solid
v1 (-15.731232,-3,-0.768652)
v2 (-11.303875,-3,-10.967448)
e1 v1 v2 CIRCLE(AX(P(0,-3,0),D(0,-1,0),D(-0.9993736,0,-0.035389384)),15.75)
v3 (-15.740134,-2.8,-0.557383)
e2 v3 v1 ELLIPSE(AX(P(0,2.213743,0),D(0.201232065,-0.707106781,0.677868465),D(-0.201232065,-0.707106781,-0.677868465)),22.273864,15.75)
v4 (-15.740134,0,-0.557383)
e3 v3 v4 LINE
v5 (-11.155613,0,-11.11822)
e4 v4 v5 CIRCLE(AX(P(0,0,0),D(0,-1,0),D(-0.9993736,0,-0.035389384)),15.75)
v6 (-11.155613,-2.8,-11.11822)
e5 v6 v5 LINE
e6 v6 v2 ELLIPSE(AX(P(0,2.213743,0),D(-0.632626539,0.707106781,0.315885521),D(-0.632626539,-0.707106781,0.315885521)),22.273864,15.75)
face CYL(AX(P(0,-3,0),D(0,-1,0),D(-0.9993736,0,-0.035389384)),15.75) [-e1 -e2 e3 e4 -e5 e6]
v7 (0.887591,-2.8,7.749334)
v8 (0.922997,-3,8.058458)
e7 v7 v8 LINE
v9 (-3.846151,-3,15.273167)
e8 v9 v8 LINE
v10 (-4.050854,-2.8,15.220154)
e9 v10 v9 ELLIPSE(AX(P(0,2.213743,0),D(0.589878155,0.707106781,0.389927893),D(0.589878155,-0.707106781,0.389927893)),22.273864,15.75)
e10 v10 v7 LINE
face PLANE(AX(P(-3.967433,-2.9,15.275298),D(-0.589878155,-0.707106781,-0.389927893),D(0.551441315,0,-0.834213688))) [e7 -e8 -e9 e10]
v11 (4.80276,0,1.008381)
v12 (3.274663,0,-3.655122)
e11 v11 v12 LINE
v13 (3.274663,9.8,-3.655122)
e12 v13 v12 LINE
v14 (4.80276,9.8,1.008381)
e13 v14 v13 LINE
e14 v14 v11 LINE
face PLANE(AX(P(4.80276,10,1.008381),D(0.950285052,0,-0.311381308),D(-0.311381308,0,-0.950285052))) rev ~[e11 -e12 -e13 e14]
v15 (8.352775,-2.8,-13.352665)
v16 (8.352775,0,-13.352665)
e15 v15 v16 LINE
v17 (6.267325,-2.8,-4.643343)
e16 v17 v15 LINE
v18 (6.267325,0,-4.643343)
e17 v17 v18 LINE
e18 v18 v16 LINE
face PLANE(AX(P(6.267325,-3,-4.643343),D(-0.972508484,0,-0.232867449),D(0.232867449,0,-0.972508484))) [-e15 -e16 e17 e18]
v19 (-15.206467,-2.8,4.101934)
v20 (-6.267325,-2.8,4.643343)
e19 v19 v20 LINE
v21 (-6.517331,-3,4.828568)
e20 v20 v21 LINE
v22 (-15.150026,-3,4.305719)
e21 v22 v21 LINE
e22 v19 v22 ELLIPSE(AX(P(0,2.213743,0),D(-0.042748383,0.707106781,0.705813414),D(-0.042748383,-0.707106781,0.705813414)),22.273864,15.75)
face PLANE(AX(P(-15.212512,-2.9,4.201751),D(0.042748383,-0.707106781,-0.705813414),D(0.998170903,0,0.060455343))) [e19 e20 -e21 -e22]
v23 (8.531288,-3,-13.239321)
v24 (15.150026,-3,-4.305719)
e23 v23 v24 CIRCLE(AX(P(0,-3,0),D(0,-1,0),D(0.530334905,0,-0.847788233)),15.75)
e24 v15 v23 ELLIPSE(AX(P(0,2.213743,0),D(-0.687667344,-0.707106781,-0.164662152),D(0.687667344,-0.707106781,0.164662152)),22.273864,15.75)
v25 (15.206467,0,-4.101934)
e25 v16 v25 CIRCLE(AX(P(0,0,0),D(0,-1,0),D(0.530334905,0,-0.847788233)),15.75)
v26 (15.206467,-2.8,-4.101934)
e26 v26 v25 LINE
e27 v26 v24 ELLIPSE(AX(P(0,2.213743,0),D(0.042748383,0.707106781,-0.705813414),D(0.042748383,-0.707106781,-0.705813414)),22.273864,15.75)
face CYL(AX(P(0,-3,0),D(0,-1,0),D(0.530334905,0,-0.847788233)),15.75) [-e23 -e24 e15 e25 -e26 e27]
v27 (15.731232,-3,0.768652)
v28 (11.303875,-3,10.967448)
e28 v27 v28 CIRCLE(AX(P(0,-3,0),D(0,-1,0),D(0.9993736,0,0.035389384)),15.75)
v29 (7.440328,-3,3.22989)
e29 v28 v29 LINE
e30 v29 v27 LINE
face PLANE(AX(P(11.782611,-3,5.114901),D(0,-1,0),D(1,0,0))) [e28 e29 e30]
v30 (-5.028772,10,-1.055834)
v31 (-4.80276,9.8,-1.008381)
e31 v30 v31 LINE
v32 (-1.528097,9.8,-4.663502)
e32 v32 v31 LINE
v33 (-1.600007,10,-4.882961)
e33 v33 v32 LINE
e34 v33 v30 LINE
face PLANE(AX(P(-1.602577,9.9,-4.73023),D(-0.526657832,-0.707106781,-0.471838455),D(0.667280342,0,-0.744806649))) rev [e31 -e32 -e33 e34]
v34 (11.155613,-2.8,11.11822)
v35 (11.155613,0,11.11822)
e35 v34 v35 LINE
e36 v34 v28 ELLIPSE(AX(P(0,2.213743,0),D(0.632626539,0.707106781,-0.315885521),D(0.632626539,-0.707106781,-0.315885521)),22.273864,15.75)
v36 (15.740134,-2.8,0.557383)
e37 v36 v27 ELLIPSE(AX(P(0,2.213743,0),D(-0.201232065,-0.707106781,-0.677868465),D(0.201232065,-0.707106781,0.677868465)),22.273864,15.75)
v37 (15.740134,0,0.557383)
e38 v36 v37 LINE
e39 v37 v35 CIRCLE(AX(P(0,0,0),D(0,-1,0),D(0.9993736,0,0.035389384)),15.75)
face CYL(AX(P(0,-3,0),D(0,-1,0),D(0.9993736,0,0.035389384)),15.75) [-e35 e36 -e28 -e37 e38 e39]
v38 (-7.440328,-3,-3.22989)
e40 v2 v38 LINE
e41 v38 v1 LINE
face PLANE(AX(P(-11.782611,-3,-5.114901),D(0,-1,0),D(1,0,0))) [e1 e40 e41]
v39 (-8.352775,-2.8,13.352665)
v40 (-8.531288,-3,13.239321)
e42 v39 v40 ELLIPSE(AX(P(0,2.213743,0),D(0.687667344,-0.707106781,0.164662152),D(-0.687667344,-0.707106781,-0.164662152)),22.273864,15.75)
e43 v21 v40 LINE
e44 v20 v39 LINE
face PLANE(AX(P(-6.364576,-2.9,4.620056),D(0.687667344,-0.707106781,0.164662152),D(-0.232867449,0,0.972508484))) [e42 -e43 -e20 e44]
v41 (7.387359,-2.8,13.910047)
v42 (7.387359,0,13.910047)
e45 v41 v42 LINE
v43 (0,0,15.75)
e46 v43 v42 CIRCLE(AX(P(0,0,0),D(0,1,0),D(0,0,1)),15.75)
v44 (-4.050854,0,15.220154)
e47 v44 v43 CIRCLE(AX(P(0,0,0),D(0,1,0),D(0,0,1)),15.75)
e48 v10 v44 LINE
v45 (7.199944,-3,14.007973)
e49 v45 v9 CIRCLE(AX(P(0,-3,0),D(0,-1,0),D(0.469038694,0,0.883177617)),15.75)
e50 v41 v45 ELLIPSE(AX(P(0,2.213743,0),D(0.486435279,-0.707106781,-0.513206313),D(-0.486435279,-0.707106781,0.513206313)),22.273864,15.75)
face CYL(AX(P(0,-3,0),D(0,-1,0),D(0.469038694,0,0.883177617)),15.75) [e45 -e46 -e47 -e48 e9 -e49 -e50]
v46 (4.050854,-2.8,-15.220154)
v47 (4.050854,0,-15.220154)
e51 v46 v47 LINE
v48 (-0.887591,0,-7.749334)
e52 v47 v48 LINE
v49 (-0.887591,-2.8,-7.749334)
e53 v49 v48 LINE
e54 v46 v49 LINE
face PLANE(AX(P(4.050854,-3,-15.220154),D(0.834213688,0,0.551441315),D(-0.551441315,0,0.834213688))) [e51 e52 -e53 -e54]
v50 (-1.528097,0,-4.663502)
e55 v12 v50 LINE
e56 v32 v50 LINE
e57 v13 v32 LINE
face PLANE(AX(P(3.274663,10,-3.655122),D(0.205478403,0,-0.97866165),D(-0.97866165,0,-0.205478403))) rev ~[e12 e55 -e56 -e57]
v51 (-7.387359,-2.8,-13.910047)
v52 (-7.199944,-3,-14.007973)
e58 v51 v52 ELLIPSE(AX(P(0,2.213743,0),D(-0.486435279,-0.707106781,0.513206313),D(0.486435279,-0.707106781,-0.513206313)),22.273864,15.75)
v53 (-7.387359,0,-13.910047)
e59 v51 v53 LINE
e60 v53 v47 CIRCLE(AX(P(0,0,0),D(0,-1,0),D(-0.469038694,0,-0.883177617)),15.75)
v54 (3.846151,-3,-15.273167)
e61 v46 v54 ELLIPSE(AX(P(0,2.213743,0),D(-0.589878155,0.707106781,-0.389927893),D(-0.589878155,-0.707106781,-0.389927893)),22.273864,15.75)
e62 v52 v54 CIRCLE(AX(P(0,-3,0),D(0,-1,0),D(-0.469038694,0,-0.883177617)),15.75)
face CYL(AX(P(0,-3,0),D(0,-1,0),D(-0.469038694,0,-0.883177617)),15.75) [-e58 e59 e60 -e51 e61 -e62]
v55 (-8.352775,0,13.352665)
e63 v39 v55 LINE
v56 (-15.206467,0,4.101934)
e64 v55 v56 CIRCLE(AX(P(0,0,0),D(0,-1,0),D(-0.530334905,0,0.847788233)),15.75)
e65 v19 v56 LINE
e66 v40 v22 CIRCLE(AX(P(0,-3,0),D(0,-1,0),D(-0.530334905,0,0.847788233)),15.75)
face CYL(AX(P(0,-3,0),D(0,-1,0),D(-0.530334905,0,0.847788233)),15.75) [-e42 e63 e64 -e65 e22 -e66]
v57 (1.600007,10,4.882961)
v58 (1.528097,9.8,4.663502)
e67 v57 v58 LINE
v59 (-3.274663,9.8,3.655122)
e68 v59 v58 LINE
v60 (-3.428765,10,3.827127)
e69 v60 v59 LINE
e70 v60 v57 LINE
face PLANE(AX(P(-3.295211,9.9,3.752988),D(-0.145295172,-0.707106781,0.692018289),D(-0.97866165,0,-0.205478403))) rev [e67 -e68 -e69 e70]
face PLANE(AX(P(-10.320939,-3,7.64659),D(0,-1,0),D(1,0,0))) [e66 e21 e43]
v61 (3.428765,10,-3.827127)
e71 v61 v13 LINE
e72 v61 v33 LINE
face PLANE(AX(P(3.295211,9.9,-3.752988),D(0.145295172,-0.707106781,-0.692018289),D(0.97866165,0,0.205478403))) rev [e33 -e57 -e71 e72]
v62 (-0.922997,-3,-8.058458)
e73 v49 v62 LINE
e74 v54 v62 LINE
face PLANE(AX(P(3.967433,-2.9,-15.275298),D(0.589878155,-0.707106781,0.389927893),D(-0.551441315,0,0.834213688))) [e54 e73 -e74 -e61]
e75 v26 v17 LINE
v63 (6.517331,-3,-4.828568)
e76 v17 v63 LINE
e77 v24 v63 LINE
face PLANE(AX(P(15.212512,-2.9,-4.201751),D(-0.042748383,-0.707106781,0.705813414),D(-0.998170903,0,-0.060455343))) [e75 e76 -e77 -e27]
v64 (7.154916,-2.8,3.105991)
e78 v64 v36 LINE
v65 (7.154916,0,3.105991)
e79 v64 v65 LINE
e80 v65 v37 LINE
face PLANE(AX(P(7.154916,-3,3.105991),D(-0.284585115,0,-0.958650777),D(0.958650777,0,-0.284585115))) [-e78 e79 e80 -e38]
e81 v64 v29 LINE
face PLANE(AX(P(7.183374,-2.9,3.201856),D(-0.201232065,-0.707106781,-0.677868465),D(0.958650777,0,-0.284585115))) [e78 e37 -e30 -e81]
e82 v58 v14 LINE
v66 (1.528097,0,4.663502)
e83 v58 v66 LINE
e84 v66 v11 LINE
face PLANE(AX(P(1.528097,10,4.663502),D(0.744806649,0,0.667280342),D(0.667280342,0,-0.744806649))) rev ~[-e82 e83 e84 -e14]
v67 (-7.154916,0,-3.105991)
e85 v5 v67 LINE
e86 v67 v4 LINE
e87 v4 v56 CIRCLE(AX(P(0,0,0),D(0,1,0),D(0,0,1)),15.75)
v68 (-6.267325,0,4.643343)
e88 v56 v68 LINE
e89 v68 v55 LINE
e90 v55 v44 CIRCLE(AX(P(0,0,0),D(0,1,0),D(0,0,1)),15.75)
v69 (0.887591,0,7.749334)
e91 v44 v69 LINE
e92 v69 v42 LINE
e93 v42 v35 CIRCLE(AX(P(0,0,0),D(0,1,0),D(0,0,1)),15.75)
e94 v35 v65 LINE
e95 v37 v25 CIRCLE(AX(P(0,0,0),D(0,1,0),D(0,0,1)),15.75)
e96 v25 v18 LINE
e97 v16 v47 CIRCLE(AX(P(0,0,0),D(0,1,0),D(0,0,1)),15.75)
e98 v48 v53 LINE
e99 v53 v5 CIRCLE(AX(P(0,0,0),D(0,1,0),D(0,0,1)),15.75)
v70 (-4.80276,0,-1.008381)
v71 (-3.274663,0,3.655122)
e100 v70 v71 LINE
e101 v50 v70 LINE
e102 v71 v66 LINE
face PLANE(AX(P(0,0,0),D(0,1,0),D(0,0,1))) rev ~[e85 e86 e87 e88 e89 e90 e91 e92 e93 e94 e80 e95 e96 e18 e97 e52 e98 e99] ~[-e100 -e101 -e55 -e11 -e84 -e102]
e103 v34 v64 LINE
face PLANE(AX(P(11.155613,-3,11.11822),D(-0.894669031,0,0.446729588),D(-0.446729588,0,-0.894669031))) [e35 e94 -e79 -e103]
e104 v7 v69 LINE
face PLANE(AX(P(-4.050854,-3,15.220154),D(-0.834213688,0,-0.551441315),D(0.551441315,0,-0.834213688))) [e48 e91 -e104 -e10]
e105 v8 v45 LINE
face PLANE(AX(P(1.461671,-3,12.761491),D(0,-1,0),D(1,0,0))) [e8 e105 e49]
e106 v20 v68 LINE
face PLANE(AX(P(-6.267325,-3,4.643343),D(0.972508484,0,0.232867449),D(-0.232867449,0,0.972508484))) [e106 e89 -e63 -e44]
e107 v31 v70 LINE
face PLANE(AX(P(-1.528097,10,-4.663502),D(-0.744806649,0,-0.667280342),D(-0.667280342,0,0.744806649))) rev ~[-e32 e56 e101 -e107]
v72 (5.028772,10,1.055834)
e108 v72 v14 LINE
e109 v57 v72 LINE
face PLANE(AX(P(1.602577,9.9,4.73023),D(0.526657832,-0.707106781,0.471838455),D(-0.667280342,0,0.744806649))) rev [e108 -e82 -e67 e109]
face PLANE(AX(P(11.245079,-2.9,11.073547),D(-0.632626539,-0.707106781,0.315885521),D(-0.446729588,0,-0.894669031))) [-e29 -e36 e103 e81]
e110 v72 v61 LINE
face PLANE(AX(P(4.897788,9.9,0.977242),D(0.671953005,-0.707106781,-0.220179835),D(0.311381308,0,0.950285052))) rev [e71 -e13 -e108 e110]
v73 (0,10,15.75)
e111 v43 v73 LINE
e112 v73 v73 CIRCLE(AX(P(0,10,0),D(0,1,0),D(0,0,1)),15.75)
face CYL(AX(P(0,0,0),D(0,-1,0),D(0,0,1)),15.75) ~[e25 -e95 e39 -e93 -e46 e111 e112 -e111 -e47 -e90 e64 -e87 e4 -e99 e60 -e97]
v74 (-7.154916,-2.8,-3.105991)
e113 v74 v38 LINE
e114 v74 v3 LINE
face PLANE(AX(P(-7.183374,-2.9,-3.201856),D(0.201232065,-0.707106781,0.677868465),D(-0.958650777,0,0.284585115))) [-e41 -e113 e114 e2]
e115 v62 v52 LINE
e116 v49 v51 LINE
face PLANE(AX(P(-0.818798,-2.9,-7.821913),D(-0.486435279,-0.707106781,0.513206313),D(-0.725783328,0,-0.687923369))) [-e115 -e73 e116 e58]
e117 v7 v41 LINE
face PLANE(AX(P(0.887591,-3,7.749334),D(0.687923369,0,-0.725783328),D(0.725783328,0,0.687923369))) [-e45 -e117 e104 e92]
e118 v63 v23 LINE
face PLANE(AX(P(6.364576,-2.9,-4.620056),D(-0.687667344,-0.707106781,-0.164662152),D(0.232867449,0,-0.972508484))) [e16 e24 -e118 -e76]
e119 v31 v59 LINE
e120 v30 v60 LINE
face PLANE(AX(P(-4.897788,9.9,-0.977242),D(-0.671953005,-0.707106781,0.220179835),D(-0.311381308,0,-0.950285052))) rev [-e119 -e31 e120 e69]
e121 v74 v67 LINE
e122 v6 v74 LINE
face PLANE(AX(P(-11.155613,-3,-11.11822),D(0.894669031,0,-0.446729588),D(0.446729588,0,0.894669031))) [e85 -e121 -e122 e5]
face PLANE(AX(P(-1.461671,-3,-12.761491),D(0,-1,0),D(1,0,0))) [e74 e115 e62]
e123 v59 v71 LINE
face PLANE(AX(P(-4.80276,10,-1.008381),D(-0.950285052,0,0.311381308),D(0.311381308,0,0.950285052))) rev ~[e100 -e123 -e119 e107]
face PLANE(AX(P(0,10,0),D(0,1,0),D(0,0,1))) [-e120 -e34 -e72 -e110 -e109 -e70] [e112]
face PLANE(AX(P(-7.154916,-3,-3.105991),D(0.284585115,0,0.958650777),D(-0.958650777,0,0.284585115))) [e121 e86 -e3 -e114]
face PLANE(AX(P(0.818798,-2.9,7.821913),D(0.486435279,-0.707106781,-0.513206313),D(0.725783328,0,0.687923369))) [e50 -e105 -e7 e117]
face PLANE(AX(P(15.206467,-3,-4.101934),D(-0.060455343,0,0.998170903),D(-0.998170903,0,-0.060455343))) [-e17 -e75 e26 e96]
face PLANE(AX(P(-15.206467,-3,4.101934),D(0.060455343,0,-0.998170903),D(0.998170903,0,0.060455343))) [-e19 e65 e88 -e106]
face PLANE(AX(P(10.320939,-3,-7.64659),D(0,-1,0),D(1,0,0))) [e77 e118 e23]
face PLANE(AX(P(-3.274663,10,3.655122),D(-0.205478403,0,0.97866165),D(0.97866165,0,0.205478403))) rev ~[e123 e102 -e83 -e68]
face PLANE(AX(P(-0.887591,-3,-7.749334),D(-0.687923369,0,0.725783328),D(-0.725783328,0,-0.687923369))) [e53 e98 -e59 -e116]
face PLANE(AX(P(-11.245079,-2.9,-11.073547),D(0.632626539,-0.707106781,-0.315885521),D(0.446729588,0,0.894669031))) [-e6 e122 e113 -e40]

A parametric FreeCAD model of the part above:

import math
import FreeCAD as App
import Part
import Sketcher


def edges_at(feature, points):
    """Names of the edges that pass closest to the given points."""
    edges = feature.Shape.Edges
    near = lambda p: min(range(len(edges)), key=lambda i: edges[i].distToShape(Part.Vertex(*p))[0])
    return sorted({f"Edge{near(p) + 1}" for p in points})


def add_polygon(sketch, points):
    """Adds a closed chain of lines whose ends are joined by coincident constraints."""
    first, n = sketch.GeometryCount, len(points)
    for a, b in zip(points, points[1:] + points[:1]):
        sketch.addGeometry(Part.LineSegment(App.Vector(*a, 0), App.Vector(*b, 0)), False)
    for i in range(n):
        sketch.addConstraint(Sketcher.Constraint("Coincident", first + i, 2, first + (i + 1) % n, 1))

doc = App.newDocument("Part")
params = doc.addObject("Spreadsheet::Sheet", "Params")
for row, (alias, value) in enumerate([
    ("sketch1_diameter", "31.5 mm"),
    ("pad1_length", "10 mm"),
    ("pocket1_length", "10 mm"),
    ("sketch3_radius", "15.75 mm"),
    ("pad2_length", "3 mm"),
    ("chamfer_size", "0.2 mm"),
], start=1):
    params.set(f"A{row}", alias)
    params.set(f"B{row}", "=" + value)
    params.setAlias(f"B{row}", alias)

body = doc.addObject("PartDesign::Body", "Body")

# Sketch on XZ plane
sketch1 = body.newObject("Sketcher::SketchObject", "Sketch")
sketch1.AttachmentSupport = (doc.getObject("XZ_Plane"), [""])
sketch1.MapMode = "FlatFace"
sketch1.addGeometry(Part.Circle(App.Vector(0, 0, 0), App.Vector(0, 0, 1), 16), False)
sketch1.addConstraint([
    Sketcher.Constraint("Coincident", 0, 3, -1, 1),
    Sketcher.Constraint("Diameter", 0, 31.5),
])
sketch1.setExpression("Constraints[1]", "Params.sketch1_diameter")
pad1 = body.newObject("PartDesign::Pad", "Pad")
pad1.Profile = sketch1
pad1.setExpression("Length", "Params.pad1_length")
pad1.Reversed = True

# Sketch on XZ plane
sketch2 = body.newObject("Sketcher::SketchObject", "Sketch001")
sketch2.AttachmentSupport = (doc.getObject("XZ_Plane"), [""])
sketch2.MapMode = "FlatFace"
sketch2.AttachmentOffset = App.Placement(App.Vector(0, 0, -10), App.Rotation())
add_polygon(sketch2, [(3.3, -3.7), (-1.5, -4.7), (-4.8, -1), (-3.3, 3.7), (1.5, 4.7), (4.8, 1)])  # lines 0-5
sketch2.addConstraint([
    Sketcher.Constraint("Symmetric", 0, 2, 3, 2, -1, 1),
    Sketcher.Constraint("Symmetric", 1, 2, 4, 2, -1, 1),
    Sketcher.Constraint("Symmetric", 2, 2, 5, 2, -1, 1),
    Sketcher.Constraint("Equal", 0, 1),
    Sketcher.Constraint("Equal", 1, 2),
    Sketcher.Constraint("DistanceX", 1, 2, -1, 1, 4.80276),
    Sketcher.Constraint("DistanceY", 1, 2, -1, 1, 1.008381),
    Sketcher.Constraint("DistanceY", -1, 1, 2, 2, 3.655122),
    Sketcher.Constraint("DistanceY", 0, 2, 1, 2, 3.655122),
])
pocket1 = body.newObject("PartDesign::Pocket", "Pocket")
pocket1.Profile = sketch2
pocket1.setExpression("Length", "Params.pocket1_length")
pocket1.Reversed = True

# Sketch on XZ plane
sketch3 = body.newObject("Sketcher::SketchObject", "Sketch002")
sketch3.AttachmentSupport = (doc.getObject("XZ_Plane"), [""])
sketch3.MapMode = "FlatFace"
sketch3.AttachmentOffset = App.Placement(App.Vector(0, 0, 3), App.Rotation())
sketch3.addGeometry([
    Part.LineSegment(App.Vector(-11, -11, 0), App.Vector(-7, -3, 0)),  # 0
    Part.LineSegment(App.Vector(-7, -3, 0), App.Vector(-16, -1, 0)),  # 1
    Part.ArcOfCircle(Part.Circle(App.Vector(0, 0, 0), App.Vector(0, 0, 1), 16), math.radians(-178), math.radians(-135)),  # 2
    Part.LineSegment(App.Vector(-1, -8, 0), App.Vector(-7, -14, 0)),  # 3
    Part.ArcOfCircle(Part.Circle(App.Vector(0, 0, 0), App.Vector(0, 0, 1), 16), math.radians(-118), math.radians(-75)),  # 4
    Part.LineSegment(App.Vector(4, -15, 0), App.Vector(-1, -8, 0)),  # 5
    Part.LineSegment(App.Vector(6, -5, 0), App.Vector(8, -13, 0)),  # 6
    Part.ArcOfCircle(Part.Circle(App.Vector(0, 0, 0), App.Vector(0, 0, 1), 16), math.radians(-58), math.radians(-15)),  # 7
    Part.LineSegment(App.Vector(15, -4, 0), App.Vector(6, -5, 0)),  # 8
    Part.ArcOfCircle(Part.Circle(App.Vector(0, 0, 0), App.Vector(0, 0, 1), 16), math.radians(2), math.radians(45)),  # 9
    Part.LineSegment(App.Vector(11, 11, 0), App.Vector(7, 3, 0)),  # 10
    Part.LineSegment(App.Vector(7, 3, 0), App.Vector(16, 1, 0)),  # 11
    Part.ArcOfCircle(Part.Circle(App.Vector(0, 0, 0), App.Vector(0, 0, 1), 16), math.radians(62), math.radians(105)),  # 12
    Part.LineSegment(App.Vector(-4, 15, 0), App.Vector(1, 8, 0)),  # 13
    Part.LineSegment(App.Vector(1, 8, 0), App.Vector(7, 14, 0)),  # 14
    Part.ArcOfCircle(Part.Circle(App.Vector(0, 0, 0), App.Vector(0, 0, 1), 16), math.radians(122), math.radians(165)),  # 15
    Part.LineSegment(App.Vector(-15, 4, 0), App.Vector(-6, 5, 0)),  # 16
    Part.LineSegment(App.Vector(-6, 5, 0), App.Vector(-8, 13, 0)),  # 17
], False)
sketch3.addConstraint([
    Sketcher.Constraint("Coincident", 0, 2, 1, 1),
    Sketcher.Constraint("Coincident", 1, 2, 2, 1),
    Sketcher.Constraint("Coincident", 2, 2, 0, 1),
    Sketcher.Constraint("Coincident", 3, 2, 4, 1),
    Sketcher.Constraint("Coincident", 4, 2, 5, 1),
    Sketcher.Constraint("Coincident", 5, 2, 3, 1),
    Sketcher.Constraint("Coincident", 6, 2, 7, 1),
    Sketcher.Constraint("Coincident", 7, 2, 8, 1),
    Sketcher.Constraint("Coincident", 8, 2, 6, 1),
    Sketcher.Constraint("Coincident", 9, 2, 10, 1),
    Sketcher.Constraint("Coincident", 10, 2, 11, 1),
    Sketcher.Constraint("Coincident", 11, 2, 9, 1),
    Sketcher.Constraint("Coincident", 12, 2, 13, 1),
    Sketcher.Constraint("Coincident", 13, 2, 14, 1),
    Sketcher.Constraint("Coincident", 14, 2, 12, 1),
    Sketcher.Constraint("Coincident", 15, 2, 16, 1),
    Sketcher.Constraint("Coincident", 16, 2, 17, 1),
    Sketcher.Constraint("Coincident", 17, 2, 15, 1),
    Sketcher.Constraint("Coincident", 2, 3, -1, 1),
    Sketcher.Constraint("Coincident", 4, 3, -1, 1),
    Sketcher.Constraint("Coincident", 7, 3, -1, 1),
    Sketcher.Constraint("Coincident", 9, 3, -1, 1),
    Sketcher.Constraint("Coincident", 12, 3, -1, 1),
    Sketcher.Constraint("Coincident", 15, 3, -1, 1),
    Sketcher.Constraint("Equal", 2, 4),
    Sketcher.Constraint("Equal", 4, 7),
    Sketcher.Constraint("Equal", 7, 9),
    Sketcher.Constraint("Equal", 9, 12),
    Sketcher.Constraint("Equal", 12, 15),
    Sketcher.Constraint("Symmetric", 0, 2, 10, 2, -1, 1),
    Sketcher.Constraint("Symmetric", 5, 2, 13, 2, -1, 1),
    Sketcher.Constraint("Symmetric", 8, 2, 16, 2, -1, 1),
    Sketcher.Constraint("Parallel", 0, 10),
    Sketcher.Constraint("Parallel", 1, 11),
    Sketcher.Constraint("Parallel", 5, 13),
    Sketcher.Constraint("Parallel", 3, 14),
    Sketcher.Constraint("Parallel", 8, 16),
    Sketcher.Constraint("Parallel", 6, 17),
    Sketcher.Constraint("Equal", 0, 1),
    Sketcher.Constraint("Equal", 1, 3),
    Sketcher.Constraint("Equal", 3, 5),
    Sketcher.Constraint("Equal", 5, 6),
    Sketcher.Constraint("Equal", 6, 8),
    Sketcher.Constraint("Radius", 2, 15.75),
    Sketcher.Constraint("DistanceY", 0, 2, -1, 1, 3.105991),
    Sketcher.Constraint("DistanceY", 2, 2, -1, 1, 11.11822),
    Sketcher.Constraint("DistanceX", 3, 2, -1, 1, 7.387359),
    Sketcher.Constraint("DistanceX", 5, 2, -1, 1, 0.887591),
    Sketcher.Constraint("DistanceX", 1, 2, 0, 2, 8.585218),
    Sketcher.Constraint("DistanceX", 4, 2, 6, 2, 4.30192),
    Sketcher.Constraint("DistanceY", 6, 2, 7, 2, 9.250731),
])
sketch3.setExpression("Constraints[43]", "Params.sketch3_radius")
pad2 = body.newObject("PartDesign::Pad", "Pad001")
pad2.Profile = sketch3
pad2.setExpression("Length", "Params.pad2_length")
pad2.Reversed = True
doc.recompute()

chamfer = body.newObject("PartDesign::Chamfer", "Chamfer")
chamfer.Base = (pad2, edges_at(pad2, [
    (4.039, 10, -1.323),
    (0.873, 10, -4.159),
    (-3.165, 10, -2.836),
    (-4.039, 10, 1.323),
    (-0.873, 10, 4.159),
    (3.165, 10, 2.836),
    (-9.155, -3, -7.112),
    (-11.448, -3, -1.832),
    (1.582, -3, -11.485),
    (-4.137, -3, -10.83),
    (10.737, -3, -4.373),
    (7.31, -3, -8.998),
    (9.155, -3, 7.112),
    (11.448, -3, 1.832),
    (-1.582, -3, 11.485),
    (4.137, -3, 10.83),
    (-10.737, -3, 4.373),
    (-7.31, -3, 8.998),
]))
chamfer.setExpression("Size", "Params.chamfer_size")

doc.recompute()
